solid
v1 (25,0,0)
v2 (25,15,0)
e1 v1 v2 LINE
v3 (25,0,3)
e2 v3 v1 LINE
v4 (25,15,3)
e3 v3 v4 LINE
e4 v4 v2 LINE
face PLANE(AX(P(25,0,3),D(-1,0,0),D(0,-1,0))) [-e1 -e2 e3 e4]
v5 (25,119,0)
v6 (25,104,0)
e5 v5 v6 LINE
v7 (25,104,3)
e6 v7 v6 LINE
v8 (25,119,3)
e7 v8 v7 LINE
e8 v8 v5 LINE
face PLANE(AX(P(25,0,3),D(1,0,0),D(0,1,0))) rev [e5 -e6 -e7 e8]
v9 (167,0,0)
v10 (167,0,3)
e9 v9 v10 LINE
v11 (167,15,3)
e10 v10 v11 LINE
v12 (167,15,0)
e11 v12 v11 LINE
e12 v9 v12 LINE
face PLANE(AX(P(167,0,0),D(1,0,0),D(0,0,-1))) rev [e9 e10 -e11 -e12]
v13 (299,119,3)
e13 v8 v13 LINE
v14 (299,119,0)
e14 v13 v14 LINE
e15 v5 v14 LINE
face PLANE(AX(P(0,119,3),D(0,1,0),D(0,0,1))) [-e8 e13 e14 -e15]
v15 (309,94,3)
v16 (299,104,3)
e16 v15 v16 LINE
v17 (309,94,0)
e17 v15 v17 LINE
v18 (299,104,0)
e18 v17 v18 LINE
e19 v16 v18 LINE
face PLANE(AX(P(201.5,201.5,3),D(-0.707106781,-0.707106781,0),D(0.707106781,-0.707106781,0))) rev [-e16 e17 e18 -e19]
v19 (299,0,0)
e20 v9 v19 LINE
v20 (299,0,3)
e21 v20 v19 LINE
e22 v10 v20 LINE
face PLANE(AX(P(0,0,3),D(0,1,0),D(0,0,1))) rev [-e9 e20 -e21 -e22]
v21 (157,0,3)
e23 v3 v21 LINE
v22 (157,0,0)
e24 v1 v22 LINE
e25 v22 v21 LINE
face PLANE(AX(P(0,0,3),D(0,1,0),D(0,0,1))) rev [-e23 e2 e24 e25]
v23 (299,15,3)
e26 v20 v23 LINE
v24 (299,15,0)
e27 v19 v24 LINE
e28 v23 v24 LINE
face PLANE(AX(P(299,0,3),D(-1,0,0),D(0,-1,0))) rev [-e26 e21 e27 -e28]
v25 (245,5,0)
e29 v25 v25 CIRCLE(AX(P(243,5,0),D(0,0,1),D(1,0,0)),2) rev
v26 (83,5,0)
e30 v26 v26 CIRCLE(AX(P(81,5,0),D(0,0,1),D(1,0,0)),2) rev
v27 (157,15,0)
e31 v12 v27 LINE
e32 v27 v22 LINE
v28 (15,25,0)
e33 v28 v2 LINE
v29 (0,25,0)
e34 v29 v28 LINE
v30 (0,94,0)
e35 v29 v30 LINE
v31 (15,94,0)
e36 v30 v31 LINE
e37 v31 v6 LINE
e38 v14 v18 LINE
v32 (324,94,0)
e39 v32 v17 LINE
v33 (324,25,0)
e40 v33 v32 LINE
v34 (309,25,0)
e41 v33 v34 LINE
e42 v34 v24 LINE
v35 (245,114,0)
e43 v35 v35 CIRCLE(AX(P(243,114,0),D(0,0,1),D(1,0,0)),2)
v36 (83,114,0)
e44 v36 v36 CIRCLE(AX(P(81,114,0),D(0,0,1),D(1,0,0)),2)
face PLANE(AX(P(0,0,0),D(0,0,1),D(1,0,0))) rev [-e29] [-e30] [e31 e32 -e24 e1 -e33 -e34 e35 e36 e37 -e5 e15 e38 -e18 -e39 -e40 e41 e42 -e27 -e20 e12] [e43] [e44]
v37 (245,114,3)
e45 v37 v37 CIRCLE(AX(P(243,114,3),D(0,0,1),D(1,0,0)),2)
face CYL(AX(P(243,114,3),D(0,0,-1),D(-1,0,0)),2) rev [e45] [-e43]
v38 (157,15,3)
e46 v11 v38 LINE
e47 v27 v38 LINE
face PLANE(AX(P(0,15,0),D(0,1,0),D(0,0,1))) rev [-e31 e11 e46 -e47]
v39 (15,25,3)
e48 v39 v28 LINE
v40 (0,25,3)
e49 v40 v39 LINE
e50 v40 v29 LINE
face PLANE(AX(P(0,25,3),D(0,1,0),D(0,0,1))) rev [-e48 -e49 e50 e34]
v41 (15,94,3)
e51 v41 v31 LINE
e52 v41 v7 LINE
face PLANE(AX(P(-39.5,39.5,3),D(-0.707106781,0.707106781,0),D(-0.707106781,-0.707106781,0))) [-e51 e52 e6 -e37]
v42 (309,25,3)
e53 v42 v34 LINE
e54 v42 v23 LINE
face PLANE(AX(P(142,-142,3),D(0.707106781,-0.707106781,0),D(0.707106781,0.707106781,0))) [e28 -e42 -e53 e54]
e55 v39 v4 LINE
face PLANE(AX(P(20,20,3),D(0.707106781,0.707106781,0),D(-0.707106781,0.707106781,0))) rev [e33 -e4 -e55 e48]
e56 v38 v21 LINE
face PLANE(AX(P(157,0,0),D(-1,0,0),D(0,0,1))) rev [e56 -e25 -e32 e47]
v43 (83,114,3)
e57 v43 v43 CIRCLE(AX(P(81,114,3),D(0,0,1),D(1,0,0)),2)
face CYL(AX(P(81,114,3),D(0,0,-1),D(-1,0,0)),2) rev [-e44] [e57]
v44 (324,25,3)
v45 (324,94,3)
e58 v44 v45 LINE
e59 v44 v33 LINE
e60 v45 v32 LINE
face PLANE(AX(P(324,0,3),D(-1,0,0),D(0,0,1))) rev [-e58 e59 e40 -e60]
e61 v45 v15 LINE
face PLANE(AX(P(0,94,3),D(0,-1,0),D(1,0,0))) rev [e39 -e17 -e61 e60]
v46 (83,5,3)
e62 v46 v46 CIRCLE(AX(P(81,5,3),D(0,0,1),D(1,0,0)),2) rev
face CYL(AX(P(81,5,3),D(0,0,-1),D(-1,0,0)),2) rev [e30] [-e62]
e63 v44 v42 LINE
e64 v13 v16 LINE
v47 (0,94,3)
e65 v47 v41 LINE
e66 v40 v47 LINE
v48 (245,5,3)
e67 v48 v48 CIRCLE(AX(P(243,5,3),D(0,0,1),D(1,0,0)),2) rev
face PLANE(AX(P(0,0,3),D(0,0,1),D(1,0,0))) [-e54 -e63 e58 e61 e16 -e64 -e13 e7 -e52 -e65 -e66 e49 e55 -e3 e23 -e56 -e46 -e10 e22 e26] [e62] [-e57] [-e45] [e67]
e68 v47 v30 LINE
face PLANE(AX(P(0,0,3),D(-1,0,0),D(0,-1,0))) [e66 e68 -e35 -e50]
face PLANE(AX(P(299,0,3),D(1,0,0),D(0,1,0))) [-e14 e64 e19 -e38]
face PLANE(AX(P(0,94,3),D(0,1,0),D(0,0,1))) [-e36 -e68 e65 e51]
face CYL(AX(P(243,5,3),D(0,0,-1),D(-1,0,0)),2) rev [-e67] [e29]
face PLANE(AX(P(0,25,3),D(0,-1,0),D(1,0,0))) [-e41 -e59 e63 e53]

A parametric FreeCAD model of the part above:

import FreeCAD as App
import Part
import Sketcher

doc = App.newDocument("Part")
params = doc.addObject("Spreadsheet::Sheet", "Params")
for row, (alias, value) in enumerate([
    ("sketch1_diameter", "4 mm"),
    ("sketch1_width", "15 mm"),
    ("sketch1_width2", "274 mm"),
    ("sketch1_height", "69 mm"),
    ("pad1_length", "3 mm"),
    ("sketch2_width", "10 mm"),
    ("sketch2_height", "15 mm"),
    ("pocket1_length", "3 mm"),
], start=1):
    params.set(f"A{row}", alias)
    params.set(f"B{row}", "=" + value)
    params.setAlias(f"B{row}", alias)

body = doc.addObject("PartDesign::Body", "Body")

sketch1 = body.newObject("Sketcher::SketchObject", "Sketch")
sketch1.AttachmentSupport = (doc.getObject("XY_Plane"), [""])
sketch1.MapMode = "FlatFace"
sketch1.addGeometry([
    Part.LineSegment(App.Vector(0, 94, 0), App.Vector(0, 25, 0)),
    Part.LineSegment(App.Vector(0, 25, 0), App.Vector(15, 25, 0)),
    Part.LineSegment(App.Vector(15, 25, 0), App.Vector(25, 15, 0)),
    Part.LineSegment(App.Vector(25, 15, 0), App.Vector(25, 0, 0)),
    Part.LineSegment(App.Vector(25, 0, 0), App.Vector(299, 0, 0)),
    Part.LineSegment(App.Vector(299, 0, 0), App.Vector(299, 15, 0)),
    Part.LineSegment(App.Vector(299, 15, 0), App.Vector(309, 25, 0)),
    Part.LineSegment(App.Vector(309, 25, 0), App.Vector(324, 25, 0)),
    Part.LineSegment(App.Vector(324, 25, 0), App.Vector(324, 94, 0)),
    Part.LineSegment(App.Vector(324, 94, 0), App.Vector(309, 94, 0)),
    Part.LineSegment(App.Vector(309, 94, 0), App.Vector(299, 104, 0)),
    Part.LineSegment(App.Vector(299, 104, 0), App.Vector(299, 119, 0)),
    Part.LineSegment(App.Vector(299, 119, 0), App.Vector(25, 119, 0)),
    Part.LineSegment(App.Vector(25, 119, 0), App.Vector(25, 104, 0)),
    Part.LineSegment(App.Vector(25, 104, 0), App.Vector(15, 94, 0)),
    Part.LineSegment(App.Vector(15, 94, 0), App.Vector(0, 94, 0)),
    Part.Circle(App.Vector(81, 5, 0), App.Vector(0, 0, 1), 2),
    Part.Circle(App.Vector(243, 5, 0), App.Vector(0, 0, 1), 2),
    Part.Circle(App.Vector(81, 114, 0), App.Vector(0, 0, 1), 2),
    Part.Circle(App.Vector(243, 114, 0), App.Vector(0, 0, 1), 2),
], False)
sketch1.addConstraint([
    Sketcher.Constraint("Coincident", 0, 2, 1, 1),
    Sketcher.Constraint("Coincident", 1, 2, 2, 1),
    Sketcher.Constraint("Coincident", 2, 2, 3, 1),
    Sketcher.Constraint("Coincident", 3, 2, 4, 1),
    Sketcher.Constraint("Coincident", 4, 2, 5, 1),
    Sketcher.Constraint("Coincident", 5, 2, 6, 1),
    Sketcher.Constraint("Coincident", 6, 2, 7, 1),
    Sketcher.Constraint("Coincident", 7, 2, 8, 1),
    Sketcher.Constraint("Coincident", 8, 2, 9, 1),
    Sketcher.Constraint("Coincident", 9, 2, 10, 1),
    Sketcher.Constraint("Coincident", 10, 2, 11, 1),
    Sketcher.Constraint("Coincident", 11, 2, 12, 1),
    Sketcher.Constraint("Coincident", 12, 2, 13, 1),
    Sketcher.Constraint("Coincident", 13, 2, 14, 1),
    Sketcher.Constraint("Coincident", 14, 2, 15, 1),
    Sketcher.Constraint("Coincident", 15, 2, 0, 1),
    Sketcher.Constraint("Vertical", 0),
    Sketcher.Constraint("Horizontal", 1),
    Sketcher.Constraint("Vertical", 3),
    Sketcher.Constraint("Horizontal", 4),
    Sketcher.Constraint("Vertical", 5),
    Sketcher.Constraint("Horizontal", 7),
    Sketcher.Constraint("Vertical", 8),
    Sketcher.Constraint("Horizontal", 9),
    Sketcher.Constraint("Vertical", 11),
    Sketcher.Constraint("Horizontal", 12),
    Sketcher.Constraint("Vertical", 13),
    Sketcher.Constraint("Horizontal", 15),
    Sketcher.Constraint("Equal", 16, 17),
    Sketcher.Constraint("Equal", 17, 18),
    Sketcher.Constraint("Equal", 18, 19),
    Sketcher.Constraint("PointOnObject", 0, 2, -2),
    Sketcher.Constraint("PointOnObject", 3, 2, -1),
    Sketcher.Constraint("Perpendicular", 2, 6),
    Sketcher.Constraint("Perpendicular", 6, 10),
    Sketcher.Constraint("Perpendicular", 10, 14),
    Sketcher.Constraint("Horizontal", 16, 3, 17, 3),
    Sketcher.Constraint("Horizontal", 18, 3, 19, 3),
    Sketcher.Constraint("Horizontal", 2, 2, 5, 2),
    Sketcher.Constraint("Horizontal", 1, 2, 6, 2),
    Sketcher.Constraint("Horizontal", 10, 2, 13, 2),
    Sketcher.Constraint("Horizontal", 9, 2, 14, 2),
    Sketcher.Constraint("Vertical", 16, 3, 18, 3),
    Sketcher.Constraint("Vertical", 17, 3, 19, 3),
    Sketcher.Constraint("Vertical", 6, 2, 9, 2),
    Sketcher.Constraint("Vertical", 5, 2, 10, 2),
    Sketcher.Constraint("Vertical", 3, 2, 12, 2),
    Sketcher.Constraint("Vertical", 1, 2, 14, 2),
    Sketcher.Constraint("Equal", 1, 7),
    Sketcher.Constraint("Equal", 15, 3),
    Sketcher.Constraint("Equal", 5, 11),
    Sketcher.Constraint("Diameter", 16, 4.0),
    Sketcher.Constraint("DistanceX", 1, 1, 1, 2, 15.0),
    Sketcher.Constraint("DistanceX", 4, 1, 4, 2, 274.0),
    Sketcher.Constraint("DistanceY", 0, 2, 0, 1, 69.0),
    Sketcher.Constraint("DistanceX", -1, 1, 16, 3, 81.0),
    Sketcher.Constraint("DistanceY", -1, 1, 16, 3, 5.0),
    Sketcher.Constraint("DistanceX", -1, 1, 17, 3, 243.0),
    Sketcher.Constraint("DistanceY", -1, 1, 18, 3, 114.0),
    Sketcher.Constraint("DistanceY", -1, 1, 0, 2, 25.0),
])
sketch1.setExpression("Constraints[51]", "Params.sketch1_diameter")
sketch1.setExpression("Constraints[52]", "Params.sketch1_width")
sketch1.setExpression("Constraints[53]", "Params.sketch1_width2")
sketch1.setExpression("Constraints[54]", "Params.sketch1_height")
pad1 = body.newObject("PartDesign::Pad", "Pad")
pad1.Profile = sketch1
pad1.setExpression("Length", "Params.pad1_length")

sketch2 = body.newObject("Sketcher::SketchObject", "Sketch001")
sketch2.AttachmentSupport = (doc.getObject("XY_Plane"), [""])
sketch2.MapMode = "FlatFace"
sketch2.AttachmentOffset = App.Placement(App.Vector(0, 0, 3), App.Rotation())
sketch2.addGeometry([
    Part.LineSegment(App.Vector(157, 15, 0), App.Vector(157, 0, 0)),
    Part.LineSegment(App.Vector(157, 0, 0), App.Vector(167, 0, 0)),
    Part.LineSegment(App.Vector(167, 0, 0), App.Vector(167, 15, 0)),
    Part.LineSegment(App.Vector(167, 15, 0), App.Vector(157, 15, 0)),
], False)
sketch2.addConstraint([
    Sketcher.Constraint("Coincident", 0, 2, 1, 1),
    Sketcher.Constraint("Coincident", 1, 2, 2, 1),
    Sketcher.Constraint("Coincident", 2, 2, 3, 1),
    Sketcher.Constraint("Coincident", 3, 2, 0, 1),
    Sketcher.Constraint("Vertical", 0),
    Sketcher.Constraint("Horizontal", 1),
    Sketcher.Constraint("Vertical", 2),
    Sketcher.Constraint("Horizontal", 3),
    Sketcher.Constraint("PointOnObject", 0, 2, -1),
    Sketcher.Constraint("DistanceX", 1, 1, 1, 2, 10.0),
    Sketcher.Constraint("DistanceY", 0, 2, 0, 1, 15.0),
    Sketcher.Constraint("DistanceX", -1, 1, 0, 2, 157.0),
])
sketch2.setExpression("Constraints[9]", "Params.sketch2_width")
sketch2.setExpression("Constraints[10]", "Params.sketch2_height")
pocket1 = body.newObject("PartDesign::Pocket", "Pocket")
pocket1.Profile = sketch2
pocket1.setExpression("Length", "Params.pocket1_length")

doc.recompute()
